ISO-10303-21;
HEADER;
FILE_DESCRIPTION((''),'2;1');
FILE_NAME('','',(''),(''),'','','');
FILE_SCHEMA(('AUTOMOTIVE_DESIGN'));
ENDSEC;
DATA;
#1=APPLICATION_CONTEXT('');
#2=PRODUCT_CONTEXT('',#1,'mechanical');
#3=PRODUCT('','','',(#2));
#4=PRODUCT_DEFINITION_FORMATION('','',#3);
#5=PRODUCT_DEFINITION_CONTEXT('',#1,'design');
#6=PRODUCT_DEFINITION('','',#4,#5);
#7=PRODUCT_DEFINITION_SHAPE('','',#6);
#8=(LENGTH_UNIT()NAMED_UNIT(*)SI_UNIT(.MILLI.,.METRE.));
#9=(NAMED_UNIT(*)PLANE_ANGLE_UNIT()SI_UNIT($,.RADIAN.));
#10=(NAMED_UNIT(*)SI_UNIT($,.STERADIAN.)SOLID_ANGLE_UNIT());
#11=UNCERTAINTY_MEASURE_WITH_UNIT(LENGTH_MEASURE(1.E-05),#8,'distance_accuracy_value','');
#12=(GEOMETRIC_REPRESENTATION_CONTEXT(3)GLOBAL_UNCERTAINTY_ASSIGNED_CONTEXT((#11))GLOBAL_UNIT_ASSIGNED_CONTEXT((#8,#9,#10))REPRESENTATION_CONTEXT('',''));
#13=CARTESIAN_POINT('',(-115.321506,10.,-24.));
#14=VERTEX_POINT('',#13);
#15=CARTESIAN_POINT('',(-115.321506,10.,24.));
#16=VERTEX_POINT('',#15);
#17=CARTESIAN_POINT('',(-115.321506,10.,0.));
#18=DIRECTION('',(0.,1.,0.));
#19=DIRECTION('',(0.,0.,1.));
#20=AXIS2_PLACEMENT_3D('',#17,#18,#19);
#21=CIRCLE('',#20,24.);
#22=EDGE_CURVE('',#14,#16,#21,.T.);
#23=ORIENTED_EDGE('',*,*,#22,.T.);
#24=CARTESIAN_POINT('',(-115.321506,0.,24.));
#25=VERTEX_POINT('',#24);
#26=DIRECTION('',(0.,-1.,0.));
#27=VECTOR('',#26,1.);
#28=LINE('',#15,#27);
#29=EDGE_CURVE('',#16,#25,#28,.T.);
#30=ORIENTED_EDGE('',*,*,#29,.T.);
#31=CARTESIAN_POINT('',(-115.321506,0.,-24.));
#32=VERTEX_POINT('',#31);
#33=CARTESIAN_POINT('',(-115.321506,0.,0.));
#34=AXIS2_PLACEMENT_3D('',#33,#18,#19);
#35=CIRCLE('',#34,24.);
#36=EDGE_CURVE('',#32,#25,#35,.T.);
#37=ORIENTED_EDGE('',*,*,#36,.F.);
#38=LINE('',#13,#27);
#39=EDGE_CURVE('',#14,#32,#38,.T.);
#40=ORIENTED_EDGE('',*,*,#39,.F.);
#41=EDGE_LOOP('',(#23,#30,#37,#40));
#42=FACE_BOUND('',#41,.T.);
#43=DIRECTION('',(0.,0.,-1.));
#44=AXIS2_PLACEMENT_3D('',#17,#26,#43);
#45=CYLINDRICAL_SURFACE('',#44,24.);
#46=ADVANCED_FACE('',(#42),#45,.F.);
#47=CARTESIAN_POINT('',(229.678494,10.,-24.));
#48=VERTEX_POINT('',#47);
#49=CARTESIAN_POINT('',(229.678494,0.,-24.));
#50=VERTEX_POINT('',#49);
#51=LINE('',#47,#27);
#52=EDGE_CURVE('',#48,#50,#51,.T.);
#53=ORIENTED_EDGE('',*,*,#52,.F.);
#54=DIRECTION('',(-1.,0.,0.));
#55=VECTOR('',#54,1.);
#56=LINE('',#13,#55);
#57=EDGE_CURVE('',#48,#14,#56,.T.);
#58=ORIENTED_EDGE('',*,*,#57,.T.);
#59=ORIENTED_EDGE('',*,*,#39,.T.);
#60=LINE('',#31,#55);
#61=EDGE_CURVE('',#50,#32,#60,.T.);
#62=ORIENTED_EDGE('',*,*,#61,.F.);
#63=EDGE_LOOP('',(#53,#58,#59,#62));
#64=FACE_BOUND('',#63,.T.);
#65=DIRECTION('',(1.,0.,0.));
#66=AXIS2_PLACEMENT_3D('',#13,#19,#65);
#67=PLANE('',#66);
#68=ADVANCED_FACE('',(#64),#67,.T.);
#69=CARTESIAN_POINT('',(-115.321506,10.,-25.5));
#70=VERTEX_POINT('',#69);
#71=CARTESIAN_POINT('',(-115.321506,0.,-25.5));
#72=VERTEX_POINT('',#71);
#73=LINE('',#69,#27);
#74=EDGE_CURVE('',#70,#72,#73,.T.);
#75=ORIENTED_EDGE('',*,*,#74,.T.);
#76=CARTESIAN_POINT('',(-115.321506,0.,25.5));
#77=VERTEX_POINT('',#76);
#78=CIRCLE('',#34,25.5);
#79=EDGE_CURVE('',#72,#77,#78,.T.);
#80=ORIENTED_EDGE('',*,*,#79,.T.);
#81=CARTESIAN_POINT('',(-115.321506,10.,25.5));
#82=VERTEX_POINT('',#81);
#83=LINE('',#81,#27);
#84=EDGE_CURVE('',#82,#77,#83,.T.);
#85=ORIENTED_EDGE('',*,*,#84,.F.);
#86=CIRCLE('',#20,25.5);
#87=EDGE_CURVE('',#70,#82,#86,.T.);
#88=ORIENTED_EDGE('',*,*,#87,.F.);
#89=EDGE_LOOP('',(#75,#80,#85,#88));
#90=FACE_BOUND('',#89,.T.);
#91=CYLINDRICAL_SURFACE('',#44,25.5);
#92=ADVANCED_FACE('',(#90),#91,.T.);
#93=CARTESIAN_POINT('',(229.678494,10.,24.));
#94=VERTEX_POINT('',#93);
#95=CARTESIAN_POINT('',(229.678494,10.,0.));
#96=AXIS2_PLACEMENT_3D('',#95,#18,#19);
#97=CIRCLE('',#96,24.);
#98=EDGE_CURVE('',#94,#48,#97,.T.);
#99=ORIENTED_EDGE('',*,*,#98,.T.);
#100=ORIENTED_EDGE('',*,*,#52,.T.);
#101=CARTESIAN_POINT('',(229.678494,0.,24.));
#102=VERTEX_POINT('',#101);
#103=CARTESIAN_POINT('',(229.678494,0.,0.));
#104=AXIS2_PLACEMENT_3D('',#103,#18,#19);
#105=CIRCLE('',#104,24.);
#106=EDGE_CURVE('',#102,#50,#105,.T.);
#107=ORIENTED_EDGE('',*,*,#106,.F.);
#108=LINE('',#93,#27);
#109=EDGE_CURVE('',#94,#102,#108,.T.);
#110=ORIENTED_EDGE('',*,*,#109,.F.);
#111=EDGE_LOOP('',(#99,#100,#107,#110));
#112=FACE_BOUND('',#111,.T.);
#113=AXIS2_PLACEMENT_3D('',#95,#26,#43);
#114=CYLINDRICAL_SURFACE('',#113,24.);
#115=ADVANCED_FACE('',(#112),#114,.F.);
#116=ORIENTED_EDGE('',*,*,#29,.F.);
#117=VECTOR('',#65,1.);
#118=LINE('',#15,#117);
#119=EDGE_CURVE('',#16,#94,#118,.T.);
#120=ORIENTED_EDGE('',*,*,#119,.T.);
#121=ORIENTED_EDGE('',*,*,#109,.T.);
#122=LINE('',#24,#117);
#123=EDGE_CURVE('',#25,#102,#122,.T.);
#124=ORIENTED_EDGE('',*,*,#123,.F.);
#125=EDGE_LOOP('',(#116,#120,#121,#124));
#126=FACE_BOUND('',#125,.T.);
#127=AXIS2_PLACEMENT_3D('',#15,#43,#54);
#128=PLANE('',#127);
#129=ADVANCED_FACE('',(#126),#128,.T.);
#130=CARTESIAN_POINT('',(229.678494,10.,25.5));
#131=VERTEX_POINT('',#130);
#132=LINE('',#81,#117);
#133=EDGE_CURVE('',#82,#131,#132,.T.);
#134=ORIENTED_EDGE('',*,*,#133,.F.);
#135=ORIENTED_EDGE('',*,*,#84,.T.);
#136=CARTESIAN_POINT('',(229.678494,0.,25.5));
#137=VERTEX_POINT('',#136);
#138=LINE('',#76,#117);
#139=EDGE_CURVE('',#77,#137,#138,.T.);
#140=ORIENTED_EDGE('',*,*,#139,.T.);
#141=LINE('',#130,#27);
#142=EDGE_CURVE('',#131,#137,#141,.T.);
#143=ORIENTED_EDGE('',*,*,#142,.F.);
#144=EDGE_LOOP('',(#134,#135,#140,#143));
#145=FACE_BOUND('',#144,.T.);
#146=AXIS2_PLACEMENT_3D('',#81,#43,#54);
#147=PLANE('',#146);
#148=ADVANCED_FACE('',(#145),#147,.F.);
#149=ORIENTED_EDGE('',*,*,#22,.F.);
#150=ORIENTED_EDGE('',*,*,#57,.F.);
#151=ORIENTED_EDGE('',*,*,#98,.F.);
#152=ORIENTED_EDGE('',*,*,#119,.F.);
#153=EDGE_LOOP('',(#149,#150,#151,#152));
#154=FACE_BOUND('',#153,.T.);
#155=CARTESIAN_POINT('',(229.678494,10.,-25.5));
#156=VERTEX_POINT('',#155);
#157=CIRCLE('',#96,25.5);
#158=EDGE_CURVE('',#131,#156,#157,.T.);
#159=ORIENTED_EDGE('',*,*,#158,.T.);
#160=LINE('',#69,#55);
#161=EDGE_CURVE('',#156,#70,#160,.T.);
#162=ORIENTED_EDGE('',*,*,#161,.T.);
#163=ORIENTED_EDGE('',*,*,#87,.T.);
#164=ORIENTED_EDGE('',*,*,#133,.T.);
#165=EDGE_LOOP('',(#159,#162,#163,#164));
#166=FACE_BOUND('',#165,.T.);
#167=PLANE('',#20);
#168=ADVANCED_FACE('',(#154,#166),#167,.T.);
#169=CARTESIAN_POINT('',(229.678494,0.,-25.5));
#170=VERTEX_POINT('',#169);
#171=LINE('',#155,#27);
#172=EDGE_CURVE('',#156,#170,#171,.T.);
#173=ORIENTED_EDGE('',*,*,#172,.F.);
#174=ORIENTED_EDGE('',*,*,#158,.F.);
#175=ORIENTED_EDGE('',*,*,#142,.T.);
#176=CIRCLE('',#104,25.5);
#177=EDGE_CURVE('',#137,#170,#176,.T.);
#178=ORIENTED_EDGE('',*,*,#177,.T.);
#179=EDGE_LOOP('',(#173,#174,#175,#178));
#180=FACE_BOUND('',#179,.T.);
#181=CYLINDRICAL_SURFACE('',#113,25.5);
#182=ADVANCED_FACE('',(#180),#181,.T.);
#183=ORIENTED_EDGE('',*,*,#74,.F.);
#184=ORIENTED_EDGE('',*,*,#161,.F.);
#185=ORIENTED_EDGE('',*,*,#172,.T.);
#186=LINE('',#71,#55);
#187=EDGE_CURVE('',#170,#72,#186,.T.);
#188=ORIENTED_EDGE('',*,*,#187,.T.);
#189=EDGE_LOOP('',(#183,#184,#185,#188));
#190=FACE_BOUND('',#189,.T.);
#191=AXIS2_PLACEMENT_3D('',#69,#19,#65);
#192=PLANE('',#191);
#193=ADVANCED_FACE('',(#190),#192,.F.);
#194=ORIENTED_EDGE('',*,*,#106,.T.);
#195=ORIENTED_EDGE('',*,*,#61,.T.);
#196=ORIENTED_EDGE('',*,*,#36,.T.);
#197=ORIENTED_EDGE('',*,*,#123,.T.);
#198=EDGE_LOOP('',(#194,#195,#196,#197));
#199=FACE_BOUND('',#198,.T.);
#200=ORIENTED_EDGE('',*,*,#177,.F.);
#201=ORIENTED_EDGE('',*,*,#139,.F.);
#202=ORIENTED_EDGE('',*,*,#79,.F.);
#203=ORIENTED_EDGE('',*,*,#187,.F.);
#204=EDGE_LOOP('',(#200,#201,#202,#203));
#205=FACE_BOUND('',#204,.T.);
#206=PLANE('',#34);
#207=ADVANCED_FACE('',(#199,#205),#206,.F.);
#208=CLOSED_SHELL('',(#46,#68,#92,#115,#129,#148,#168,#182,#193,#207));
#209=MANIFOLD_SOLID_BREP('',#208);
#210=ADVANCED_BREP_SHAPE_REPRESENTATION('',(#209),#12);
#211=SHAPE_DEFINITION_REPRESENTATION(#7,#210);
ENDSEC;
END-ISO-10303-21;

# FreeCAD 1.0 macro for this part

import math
import FreeCAD as App
import Part
import Sketcher
Q = App.Units.Quantity

doc = App.newDocument("Part")
body = doc.addObject("PartDesign::Body", "Body")

# Sketch on XZ plane
sketch1 = body.newObject("Sketcher::SketchObject", "Sketch")
sketch1.AttachmentSupport = (doc.getObject("XZ_Plane"), [""])
sketch1.MapMode = "FlatFace"
sketch1.addGeometry([
    Part.LineSegment(App.Vector(230, -26, 0), App.Vector(-115, -26, 0)),  # 0
    Part.ArcOfCircle(Part.Circle(App.Vector(-115, 0, 0), App.Vector(0, 0, 1), 26), math.radians(90), math.radians(270)),  # 1
    Part.LineSegment(App.Vector(-115, 26, 0), App.Vector(230, 26, 0)),  # 2
    Part.ArcOfCircle(Part.Circle(App.Vector(230, 0, 0), App.Vector(0, 0, 1), 26), math.radians(-90), math.radians(90)),  # 3
    Part.ArcOfCircle(Part.Circle(App.Vector(-115, 0, 0), App.Vector(0, 0, 1), 24), math.radians(90), math.radians(270)),  # 4
    Part.LineSegment(App.Vector(-115, -24, 0), App.Vector(230, -24, 0)),  # 5
    Part.ArcOfCircle(Part.Circle(App.Vector(230, 0, 0), App.Vector(0, 0, 1), 24), math.radians(-90), math.radians(90)),  # 6
    Part.LineSegment(App.Vector(230, 24, 0), App.Vector(-115, 24, 0)),  # 7
], False)
sketch1.addConstraint([
    Sketcher.Constraint("Tangent", 0, 2, 1, 2),
    Sketcher.Constraint("Tangent", 1, 1, 2, 1),
    Sketcher.Constraint("Tangent", 2, 2, 3, 2),
    Sketcher.Constraint("Tangent", 3, 1, 0, 1),
    Sketcher.Constraint("Tangent", 4, 2, 5, 1),
    Sketcher.Constraint("Tangent", 5, 2, 6, 1),
    Sketcher.Constraint("Tangent", 6, 2, 7, 1),
    Sketcher.Constraint("Tangent", 7, 2, 4, 1),
    Sketcher.Constraint("Horizontal", 0),
    Sketcher.Constraint("Horizontal", 2),
    Sketcher.Constraint("Horizontal", 5),
    Sketcher.Constraint("Horizontal", 7),
    Sketcher.Constraint("Coincident", 4, 3, 1, 3),
    Sketcher.Constraint("PointOnObject", 1, 3, -1),
    Sketcher.Constraint("Vertical", 6, 3, 2, 2),
    Sketcher.Constraint("Radius", 4, Q("24 mm")),
    Sketcher.Constraint("Radius", 1, Q("25.5 mm")),
    Sketcher.Constraint("DistanceX", 0, 2, 0, 1, Q("345 mm")),
    Sketcher.Constraint("DistanceX", 1, 3, -1, 1, Q("115.321506 mm")),
])
pad1 = body.newObject("PartDesign::Pad", "Pad")
pad1.Profile = sketch1
pad1.Length = 10
pad1.Reversed = True

doc.recompute()
